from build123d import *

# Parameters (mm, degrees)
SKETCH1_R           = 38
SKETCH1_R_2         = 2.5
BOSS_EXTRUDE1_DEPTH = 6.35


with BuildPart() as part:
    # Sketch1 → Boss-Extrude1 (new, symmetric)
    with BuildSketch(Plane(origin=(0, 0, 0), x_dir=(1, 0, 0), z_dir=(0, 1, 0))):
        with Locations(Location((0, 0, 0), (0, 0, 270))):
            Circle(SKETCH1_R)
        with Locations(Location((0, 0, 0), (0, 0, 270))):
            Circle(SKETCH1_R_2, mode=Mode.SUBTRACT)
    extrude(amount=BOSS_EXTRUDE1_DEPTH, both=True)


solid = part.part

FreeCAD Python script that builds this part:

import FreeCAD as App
import Part
import Sketcher
from FreeCAD import Vector

doc = App.newDocument("Part")
params = doc.addObject("Spreadsheet::Sheet", "Params")
for row, (alias, value) in enumerate([
    ("sketch1_diameter", "76 mm"),
    ("sketch1_diameter2", "5 mm"),
    ("pad1_length", "12.7 mm"),
], start=1):
    params.set(f"A{row}", alias)
    params.set(f"B{row}", "=" + value)
    params.setAlias(f"B{row}", alias)

body = doc.addObject("PartDesign::Body", "Body")

sketch1 = body.newObject("Sketcher::SketchObject", "Sketch")
sketch1.AttachmentSupport = (doc.getObject("XZ_Plane"), [""])
sketch1.MapMode = "FlatFace"
sketch1.addGeometry([
    Part.Circle(Vector(0, 0, 0), Vector(0, 0, 1), 38),
    Part.Circle(Vector(0, 0, 0), Vector(0, 0, 1), 2.5),
], False)
sketch1.addConstraint([
    Sketcher.Constraint("Coincident", 0, 3, -1, 1),
    Sketcher.Constraint("Coincident", 1, 3, -1, 1),
    Sketcher.Constraint("Diameter", 0, 76.0),
    Sketcher.Constraint("Diameter", 1, 5.0),
])
sketch1.setExpression("Constraints[2]", "Params.sketch1_diameter")
sketch1.setExpression("Constraints[3]", "Params.sketch1_diameter2")
pad1 = body.newObject("PartDesign::Pad", "Pad")
pad1.Profile = sketch1
pad1.setExpression("Length", "Params.pad1_length")
pad1.Midplane = True

doc.recompute()
